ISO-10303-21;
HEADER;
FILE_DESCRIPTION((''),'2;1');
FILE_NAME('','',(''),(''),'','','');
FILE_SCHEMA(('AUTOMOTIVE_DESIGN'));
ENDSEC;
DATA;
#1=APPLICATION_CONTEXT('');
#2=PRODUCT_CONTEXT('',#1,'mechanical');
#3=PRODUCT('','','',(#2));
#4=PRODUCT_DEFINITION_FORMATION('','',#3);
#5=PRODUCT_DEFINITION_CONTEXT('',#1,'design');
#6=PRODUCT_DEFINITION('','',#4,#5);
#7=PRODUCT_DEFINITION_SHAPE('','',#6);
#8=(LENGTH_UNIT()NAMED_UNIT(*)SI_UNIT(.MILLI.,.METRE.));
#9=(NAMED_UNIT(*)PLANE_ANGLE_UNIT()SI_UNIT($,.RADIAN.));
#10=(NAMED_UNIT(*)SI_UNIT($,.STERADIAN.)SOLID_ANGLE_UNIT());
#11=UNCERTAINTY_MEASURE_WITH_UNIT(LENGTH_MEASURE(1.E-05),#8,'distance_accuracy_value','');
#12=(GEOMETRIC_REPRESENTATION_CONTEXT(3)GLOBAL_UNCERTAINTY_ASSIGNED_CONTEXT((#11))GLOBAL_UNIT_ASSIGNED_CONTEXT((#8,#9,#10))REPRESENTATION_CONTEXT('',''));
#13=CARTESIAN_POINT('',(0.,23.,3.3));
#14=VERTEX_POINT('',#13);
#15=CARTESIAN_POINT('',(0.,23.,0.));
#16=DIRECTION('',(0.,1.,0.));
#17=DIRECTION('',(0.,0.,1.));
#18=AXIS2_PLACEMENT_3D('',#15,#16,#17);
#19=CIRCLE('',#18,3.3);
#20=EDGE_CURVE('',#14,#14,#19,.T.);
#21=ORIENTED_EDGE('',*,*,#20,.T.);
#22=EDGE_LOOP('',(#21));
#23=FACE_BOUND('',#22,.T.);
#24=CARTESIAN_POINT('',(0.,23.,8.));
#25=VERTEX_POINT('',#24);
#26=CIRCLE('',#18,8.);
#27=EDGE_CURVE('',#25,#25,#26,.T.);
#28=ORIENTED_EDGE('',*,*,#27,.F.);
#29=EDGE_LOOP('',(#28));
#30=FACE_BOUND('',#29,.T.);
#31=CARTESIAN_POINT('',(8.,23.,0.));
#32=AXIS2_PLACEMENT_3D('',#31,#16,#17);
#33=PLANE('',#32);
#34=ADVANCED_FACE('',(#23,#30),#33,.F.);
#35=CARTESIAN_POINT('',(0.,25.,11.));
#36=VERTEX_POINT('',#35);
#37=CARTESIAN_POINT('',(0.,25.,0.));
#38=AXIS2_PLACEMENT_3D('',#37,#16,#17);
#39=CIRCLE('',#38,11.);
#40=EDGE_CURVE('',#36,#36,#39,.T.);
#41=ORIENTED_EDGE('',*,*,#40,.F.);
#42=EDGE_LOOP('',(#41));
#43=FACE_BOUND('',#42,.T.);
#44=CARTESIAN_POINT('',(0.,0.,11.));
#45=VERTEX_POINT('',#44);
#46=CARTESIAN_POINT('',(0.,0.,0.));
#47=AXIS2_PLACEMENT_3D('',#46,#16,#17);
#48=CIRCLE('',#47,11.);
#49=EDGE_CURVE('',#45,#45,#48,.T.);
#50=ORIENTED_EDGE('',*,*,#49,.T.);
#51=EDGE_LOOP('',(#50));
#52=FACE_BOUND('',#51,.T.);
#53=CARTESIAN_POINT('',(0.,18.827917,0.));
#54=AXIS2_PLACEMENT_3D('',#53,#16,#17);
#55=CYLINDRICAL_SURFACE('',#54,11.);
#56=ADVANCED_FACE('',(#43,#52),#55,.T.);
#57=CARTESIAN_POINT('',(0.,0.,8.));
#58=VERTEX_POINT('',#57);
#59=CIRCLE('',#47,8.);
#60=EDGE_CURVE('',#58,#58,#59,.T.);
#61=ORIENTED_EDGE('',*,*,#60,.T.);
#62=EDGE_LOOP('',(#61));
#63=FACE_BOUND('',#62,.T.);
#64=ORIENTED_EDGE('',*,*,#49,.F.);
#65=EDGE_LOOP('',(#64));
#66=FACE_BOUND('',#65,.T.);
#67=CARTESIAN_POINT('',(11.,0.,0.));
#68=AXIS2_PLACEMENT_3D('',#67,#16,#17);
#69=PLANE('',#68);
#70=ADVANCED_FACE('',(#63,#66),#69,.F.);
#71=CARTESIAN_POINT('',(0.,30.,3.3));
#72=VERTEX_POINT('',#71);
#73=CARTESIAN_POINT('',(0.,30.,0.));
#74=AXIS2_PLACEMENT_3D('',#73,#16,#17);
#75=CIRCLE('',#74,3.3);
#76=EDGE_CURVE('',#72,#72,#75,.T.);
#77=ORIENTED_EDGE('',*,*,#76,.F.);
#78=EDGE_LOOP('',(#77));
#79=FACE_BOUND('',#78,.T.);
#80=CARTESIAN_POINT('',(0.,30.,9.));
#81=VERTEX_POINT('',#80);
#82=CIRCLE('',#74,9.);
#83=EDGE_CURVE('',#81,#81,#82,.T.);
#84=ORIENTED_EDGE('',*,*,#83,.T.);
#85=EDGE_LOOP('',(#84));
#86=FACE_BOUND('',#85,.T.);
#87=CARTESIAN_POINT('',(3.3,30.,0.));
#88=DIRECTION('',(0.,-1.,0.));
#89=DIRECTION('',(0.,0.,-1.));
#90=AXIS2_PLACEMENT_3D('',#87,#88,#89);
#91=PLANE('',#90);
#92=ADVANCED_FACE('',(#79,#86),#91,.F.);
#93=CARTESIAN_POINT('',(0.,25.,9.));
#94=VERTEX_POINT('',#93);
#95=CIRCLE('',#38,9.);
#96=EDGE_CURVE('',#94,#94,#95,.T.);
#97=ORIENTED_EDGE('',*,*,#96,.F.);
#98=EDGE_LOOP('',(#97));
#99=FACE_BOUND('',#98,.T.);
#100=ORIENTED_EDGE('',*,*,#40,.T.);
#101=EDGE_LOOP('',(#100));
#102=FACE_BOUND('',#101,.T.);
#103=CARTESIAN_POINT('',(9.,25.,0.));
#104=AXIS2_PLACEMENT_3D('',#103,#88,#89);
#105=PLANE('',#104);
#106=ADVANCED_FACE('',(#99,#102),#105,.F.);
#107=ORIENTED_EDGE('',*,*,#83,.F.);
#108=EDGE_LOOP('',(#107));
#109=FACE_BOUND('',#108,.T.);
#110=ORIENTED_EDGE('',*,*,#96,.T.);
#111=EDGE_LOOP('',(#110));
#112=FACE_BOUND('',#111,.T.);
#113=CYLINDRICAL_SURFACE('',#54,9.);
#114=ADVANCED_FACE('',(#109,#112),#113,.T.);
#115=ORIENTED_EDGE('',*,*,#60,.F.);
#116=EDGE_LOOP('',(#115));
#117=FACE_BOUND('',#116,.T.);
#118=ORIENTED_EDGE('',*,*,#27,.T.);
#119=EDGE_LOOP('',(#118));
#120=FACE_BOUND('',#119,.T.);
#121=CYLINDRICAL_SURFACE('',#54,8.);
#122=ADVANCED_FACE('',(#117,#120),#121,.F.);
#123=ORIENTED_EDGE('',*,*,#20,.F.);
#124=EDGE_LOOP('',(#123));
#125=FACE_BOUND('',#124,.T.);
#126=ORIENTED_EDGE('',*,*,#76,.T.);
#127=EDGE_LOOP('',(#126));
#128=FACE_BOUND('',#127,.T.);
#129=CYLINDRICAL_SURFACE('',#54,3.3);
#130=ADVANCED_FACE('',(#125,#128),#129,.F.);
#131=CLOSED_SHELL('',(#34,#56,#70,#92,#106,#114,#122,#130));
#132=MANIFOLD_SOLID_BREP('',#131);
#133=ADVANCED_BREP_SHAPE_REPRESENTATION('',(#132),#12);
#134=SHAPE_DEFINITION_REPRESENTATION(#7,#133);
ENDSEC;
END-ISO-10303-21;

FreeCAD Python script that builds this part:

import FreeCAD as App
import Part
import Sketcher

V = App.Vector

doc = App.newDocument("Part")
body = doc.addObject("PartDesign::Body", "Body")

sketch1 = body.newObject("Sketcher::SketchObject", "Sketch")
sketch1.AttachmentSupport = (doc.getObject("XY_Plane"), [""])
sketch1.MapMode = "FlatFace"
sketch1.addGeometry([
    Part.LineSegment(V(9, 30, 0), V(3.3, 30, 0)),
    Part.LineSegment(V(3.3, 30, 0), V(3.3, 23, 0)),
    Part.LineSegment(V(3.3, 23, 0), V(8, 23, 0)),
    Part.LineSegment(V(8, 23, 0), V(8, 0, 0)),
    Part.LineSegment(V(8, 0, 0), V(11, 0, 0)),
    Part.LineSegment(V(11, 0, 0), V(11, 25, 0)),
    Part.LineSegment(V(11, 25, 0), V(9, 25, 0)),
    Part.LineSegment(V(9, 25, 0), V(9, 30, 0)),
], False)
sketch1.addConstraint([
    Sketcher.Constraint("Coincident", 0, 2, 1, 1),
    Sketcher.Constraint("Coincident", 1, 2, 2, 1),
    Sketcher.Constraint("Coincident", 2, 2, 3, 1),
    Sketcher.Constraint("Coincident", 3, 2, 4, 1),
    Sketcher.Constraint("Coincident", 4, 2, 5, 1),
    Sketcher.Constraint("Coincident", 5, 2, 6, 1),
    Sketcher.Constraint("Coincident", 6, 2, 7, 1),
    Sketcher.Constraint("Coincident", 7, 2, 0, 1),
    Sketcher.Constraint("Horizontal", 0),
    Sketcher.Constraint("Vertical", 1),
    Sketcher.Constraint("Horizontal", 2),
    Sketcher.Constraint("Vertical", 3),
    Sketcher.Constraint("Horizontal", 4),
    Sketcher.Constraint("Vertical", 5),
    Sketcher.Constraint("Horizontal", 6),
    Sketcher.Constraint("Vertical", 7),
    Sketcher.Constraint("PointOnObject", 3, 2, -1),
    Sketcher.Constraint("DistanceX", 4, 1, 4, 2, 3.0),
    Sketcher.Constraint("DistanceX", 6, 2, 6, 1, 2.0),
    Sketcher.Constraint("DistanceY", 1, 2, 1, 1, 7.0),
    Sketcher.Constraint("DistanceY", 3, 2, 3, 1, 23.0),
    Sketcher.Constraint("DistanceY", 5, 1, 5, 2, 25.0),
    Sketcher.Constraint("DistanceX", 0, 2, 0, 1, 5.7),
    Sketcher.Constraint("DistanceX", -1, 1, 2, 2, 8.0),
])
revolution = body.newObject("PartDesign::Revolution", "Revolution")
revolution.Profile = sketch1
revolution.ReferenceAxis = (sketch1, ["V_Axis"])
revolution.Angle = 360

doc.recompute()
